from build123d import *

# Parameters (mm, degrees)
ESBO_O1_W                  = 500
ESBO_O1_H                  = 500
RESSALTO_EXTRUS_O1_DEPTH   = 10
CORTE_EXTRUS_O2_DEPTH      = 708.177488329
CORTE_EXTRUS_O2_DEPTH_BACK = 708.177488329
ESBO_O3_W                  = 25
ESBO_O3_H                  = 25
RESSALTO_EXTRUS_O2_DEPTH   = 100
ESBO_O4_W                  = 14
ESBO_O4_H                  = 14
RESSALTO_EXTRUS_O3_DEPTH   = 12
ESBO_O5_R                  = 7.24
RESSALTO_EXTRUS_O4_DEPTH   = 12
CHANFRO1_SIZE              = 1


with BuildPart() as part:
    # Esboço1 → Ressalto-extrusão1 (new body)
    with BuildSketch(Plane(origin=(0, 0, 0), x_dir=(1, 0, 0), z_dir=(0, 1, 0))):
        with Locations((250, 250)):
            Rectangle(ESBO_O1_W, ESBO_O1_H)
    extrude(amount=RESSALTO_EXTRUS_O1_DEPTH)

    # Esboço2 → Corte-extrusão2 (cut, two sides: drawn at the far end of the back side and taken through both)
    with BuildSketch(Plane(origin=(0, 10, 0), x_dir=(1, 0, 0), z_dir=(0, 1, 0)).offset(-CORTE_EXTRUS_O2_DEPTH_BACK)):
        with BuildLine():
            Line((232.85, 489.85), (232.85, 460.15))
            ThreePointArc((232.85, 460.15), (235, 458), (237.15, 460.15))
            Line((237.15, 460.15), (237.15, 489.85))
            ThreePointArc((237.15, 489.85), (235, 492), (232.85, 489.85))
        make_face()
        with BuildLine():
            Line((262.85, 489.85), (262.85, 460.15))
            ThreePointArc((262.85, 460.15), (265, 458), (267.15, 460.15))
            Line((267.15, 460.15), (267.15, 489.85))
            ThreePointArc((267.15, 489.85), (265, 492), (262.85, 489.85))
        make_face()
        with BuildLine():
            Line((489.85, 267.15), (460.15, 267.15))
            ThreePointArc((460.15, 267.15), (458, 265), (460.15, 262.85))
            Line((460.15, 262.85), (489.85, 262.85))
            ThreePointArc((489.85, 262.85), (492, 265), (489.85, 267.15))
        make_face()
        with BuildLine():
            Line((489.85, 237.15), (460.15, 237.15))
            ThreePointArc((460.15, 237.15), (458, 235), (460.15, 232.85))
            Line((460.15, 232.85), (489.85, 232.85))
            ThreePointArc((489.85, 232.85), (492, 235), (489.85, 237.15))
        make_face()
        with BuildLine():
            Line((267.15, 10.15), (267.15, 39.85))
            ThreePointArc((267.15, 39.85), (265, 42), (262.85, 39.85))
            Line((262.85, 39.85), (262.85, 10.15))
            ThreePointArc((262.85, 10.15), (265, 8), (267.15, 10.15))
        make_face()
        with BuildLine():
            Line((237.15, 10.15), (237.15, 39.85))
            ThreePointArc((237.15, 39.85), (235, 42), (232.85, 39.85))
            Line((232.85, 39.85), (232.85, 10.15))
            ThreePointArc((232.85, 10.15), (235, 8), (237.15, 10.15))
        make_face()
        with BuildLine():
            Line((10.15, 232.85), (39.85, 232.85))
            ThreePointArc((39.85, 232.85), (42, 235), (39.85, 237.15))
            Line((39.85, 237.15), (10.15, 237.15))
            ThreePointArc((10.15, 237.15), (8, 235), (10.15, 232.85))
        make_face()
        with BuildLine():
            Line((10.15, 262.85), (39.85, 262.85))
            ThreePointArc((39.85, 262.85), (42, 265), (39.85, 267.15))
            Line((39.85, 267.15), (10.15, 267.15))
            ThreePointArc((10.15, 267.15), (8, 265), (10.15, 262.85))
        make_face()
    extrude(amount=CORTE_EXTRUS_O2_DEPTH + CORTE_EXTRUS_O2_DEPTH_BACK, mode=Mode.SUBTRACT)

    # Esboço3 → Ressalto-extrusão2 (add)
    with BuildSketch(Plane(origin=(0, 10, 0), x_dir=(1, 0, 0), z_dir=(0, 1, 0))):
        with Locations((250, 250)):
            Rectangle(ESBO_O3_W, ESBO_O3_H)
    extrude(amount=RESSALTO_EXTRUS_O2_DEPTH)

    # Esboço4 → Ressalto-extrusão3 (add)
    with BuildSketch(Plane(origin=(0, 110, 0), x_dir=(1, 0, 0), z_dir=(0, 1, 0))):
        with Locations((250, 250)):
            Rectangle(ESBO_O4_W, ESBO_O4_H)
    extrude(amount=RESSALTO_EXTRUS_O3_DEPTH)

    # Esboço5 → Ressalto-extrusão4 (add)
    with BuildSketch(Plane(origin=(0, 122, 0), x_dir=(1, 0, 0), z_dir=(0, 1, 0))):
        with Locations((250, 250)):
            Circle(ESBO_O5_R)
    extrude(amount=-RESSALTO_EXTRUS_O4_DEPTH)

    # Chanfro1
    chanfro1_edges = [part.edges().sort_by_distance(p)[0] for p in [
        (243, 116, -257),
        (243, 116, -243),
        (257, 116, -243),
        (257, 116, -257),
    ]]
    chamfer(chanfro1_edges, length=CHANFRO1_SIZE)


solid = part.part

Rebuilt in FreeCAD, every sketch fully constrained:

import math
import FreeCAD as App
import Part
import Sketcher
Q = App.Units.Quantity


def edges_at(feature, points):
    """Names of the edges that pass closest to the given points."""
    edges = feature.Shape.Edges
    near = lambda p: min(range(len(edges)), key=lambda i: edges[i].distToShape(Part.Vertex(*p))[0])
    return sorted({f"Edge{near(p) + 1}" for p in points})

doc = App.newDocument("Part")
body = doc.addObject("PartDesign::Body", "Body")

# Sketch on XZ plane
sketch1 = body.newObject("Sketcher::SketchObject", "Sketch")
sketch1.AttachmentSupport = (doc.getObject("XZ_Plane"), [""])
sketch1.MapMode = "FlatFace"
sketch1.addGeometry([
    Part.LineSegment(App.Vector(0, -500, 0), App.Vector(0, 0, 0)),
    Part.LineSegment(App.Vector(0, 0, 0), App.Vector(500, 0, 0)),
    Part.LineSegment(App.Vector(500, 0, 0), App.Vector(500, -500, 0)),
    Part.LineSegment(App.Vector(500, -500, 0), App.Vector(0, -500, 0)),
], False)
sketch1.addConstraint([
    Sketcher.Constraint("Coincident", 0, 2, 1, 1),
    Sketcher.Constraint("Coincident", 1, 2, 2, 1),
    Sketcher.Constraint("Coincident", 2, 2, 3, 1),
    Sketcher.Constraint("Coincident", 3, 2, 0, 1),
    Sketcher.Constraint("Vertical", 0),
    Sketcher.Constraint("Horizontal", 1),
    Sketcher.Constraint("Vertical", 2),
    Sketcher.Constraint("Horizontal", 3),
    Sketcher.Constraint("Coincident", 0, 2, -1, 1),
    Sketcher.Constraint("Equal", 3, 0),
    Sketcher.Constraint("DistanceX", 1, 1, 1, 2, Q("500 mm")),
])
pad1 = body.newObject("PartDesign::Pad", "Pad")
pad1.Profile = sketch1
pad1.Length = 10
pad1.Reversed = True

# Sketch on XZ plane
sketch2 = body.newObject("Sketcher::SketchObject", "Sketch001")
sketch2.AttachmentSupport = (doc.getObject("XZ_Plane"), [""])
sketch2.MapMode = "FlatFace"
sketch2.AttachmentOffset = App.Placement(App.Vector(0, 0, -10), App.Rotation())
sketch2.addGeometry([
    Part.LineSegment(App.Vector(232.8, -489.9, 0), App.Vector(232.8, -460.1, 0)),  # 0
    Part.ArcOfCircle(Part.Circle(App.Vector(235, -460.1, 0), App.Vector(0, 0, 1), 2.1), math.radians(0), math.radians(180)),  # 1
    Part.LineSegment(App.Vector(237.2, -460.1, 0), App.Vector(237.2, -489.9, 0)),  # 2
    Part.ArcOfCircle(Part.Circle(App.Vector(235, -489.9, 0), App.Vector(0, 0, 1), 2.1), math.radians(180), math.radians(360)),  # 3
    Part.LineSegment(App.Vector(262.9, -489.9, 0), App.Vector(262.9, -460.1, 0)),  # 4
    Part.ArcOfCircle(Part.Circle(App.Vector(265, -460.1, 0), App.Vector(0, 0, 1), 2.1), math.radians(0), math.radians(180)),  # 5
    Part.LineSegment(App.Vector(267.1, -460.1, 0), App.Vector(267.1, -489.9, 0)),  # 6
    Part.ArcOfCircle(Part.Circle(App.Vector(265, -489.9, 0), App.Vector(0, 0, 1), 2.1), math.radians(180), math.radians(360)),  # 7
    Part.LineSegment(App.Vector(489.9, -267.1, 0), App.Vector(460.1, -267.1, 0)),  # 8
    Part.ArcOfCircle(Part.Circle(App.Vector(460.1, -265, 0), App.Vector(0, 0, 1), 2.1), math.radians(90), math.radians(270)),  # 9
    Part.LineSegment(App.Vector(460.1, -262.9, 0), App.Vector(489.9, -262.9, 0)),  # 10
    Part.ArcOfCircle(Part.Circle(App.Vector(489.9, -265, 0), App.Vector(0, 0, 1), 2.1), math.radians(-90), math.radians(90)),  # 11
    Part.LineSegment(App.Vector(489.9, -237.2, 0), App.Vector(460.1, -237.2, 0)),  # 12
    Part.ArcOfCircle(Part.Circle(App.Vector(460.1, -235, 0), App.Vector(0, 0, 1), 2.1), math.radians(90), math.radians(270)),  # 13
    Part.LineSegment(App.Vector(460.1, -232.8, 0), App.Vector(489.9, -232.8, 0)),  # 14
    Part.ArcOfCircle(Part.Circle(App.Vector(489.9, -235, 0), App.Vector(0, 0, 1), 2.1), math.radians(-90), math.radians(90)),  # 15
    Part.LineSegment(App.Vector(267.1, -10.2, 0), App.Vector(267.1, -39.9, 0)),  # 16
    Part.ArcOfCircle(Part.Circle(App.Vector(265, -39.9, 0), App.Vector(0, 0, 1), 2.1), math.radians(180), math.radians(360)),  # 17
    Part.LineSegment(App.Vector(262.9, -39.9, 0), App.Vector(262.9, -10.2, 0)),  # 18
    Part.ArcOfCircle(Part.Circle(App.Vector(265, -10.2, 0), App.Vector(0, 0, 1), 2.1), math.radians(0), math.radians(180)),  # 19
    Part.LineSegment(App.Vector(237.2, -10.2, 0), App.Vector(237.2, -39.9, 0)),  # 20
    Part.ArcOfCircle(Part.Circle(App.Vector(235, -39.9, 0), App.Vector(0, 0, 1), 2.1), math.radians(180), math.radians(360)),  # 21
    Part.LineSegment(App.Vector(232.8, -39.9, 0), App.Vector(232.8, -10.2, 0)),  # 22
    Part.ArcOfCircle(Part.Circle(App.Vector(235, -10.2, 0), App.Vector(0, 0, 1), 2.1), math.radians(0), math.radians(180)),  # 23
    Part.LineSegment(App.Vector(10.2, -232.8, 0), App.Vector(39.9, -232.8, 0)),  # 24
    Part.ArcOfCircle(Part.Circle(App.Vector(39.9, -235, 0), App.Vector(0, 0, 1), 2.1), math.radians(-90), math.radians(90)),  # 25
    Part.LineSegment(App.Vector(39.9, -237.2, 0), App.Vector(10.2, -237.2, 0)),  # 26
    Part.ArcOfCircle(Part.Circle(App.Vector(10.2, -235, 0), App.Vector(0, 0, 1), 2.1), math.radians(90), math.radians(270)),  # 27
    Part.LineSegment(App.Vector(10.2, -262.9, 0), App.Vector(39.9, -262.9, 0)),  # 28
    Part.ArcOfCircle(Part.Circle(App.Vector(39.9, -265, 0), App.Vector(0, 0, 1), 2.1), math.radians(-90), math.radians(90)),  # 29
    Part.LineSegment(App.Vector(39.9, -267.1, 0), App.Vector(10.2, -267.1, 0)),  # 30
    Part.ArcOfCircle(Part.Circle(App.Vector(10.2, -265, 0), App.Vector(0, 0, 1), 2.1), math.radians(90), math.radians(270)),  # 31
], False)
sketch2.addConstraint([
    Sketcher.Constraint("Tangent", 0, 2, 1, 2),
    Sketcher.Constraint("Tangent", 1, 1, 2, 1),
    Sketcher.Constraint("Tangent", 2, 2, 3, 2),
    Sketcher.Constraint("Tangent", 3, 1, 0, 1),
    Sketcher.Constraint("Tangent", 4, 2, 5, 2),
    Sketcher.Constraint("Tangent", 5, 1, 6, 1),
    Sketcher.Constraint("Tangent", 6, 2, 7, 2),
    Sketcher.Constraint("Tangent", 7, 1, 4, 1),
    Sketcher.Constraint("Tangent", 8, 2, 9, 2),
    Sketcher.Constraint("Tangent", 9, 1, 10, 1),
    Sketcher.Constraint("Tangent", 10, 2, 11, 2),
    Sketcher.Constraint("Tangent", 11, 1, 8, 1),
    Sketcher.Constraint("Tangent", 12, 2, 13, 2),
    Sketcher.Constraint("Tangent", 13, 1, 14, 1),
    Sketcher.Constraint("Tangent", 14, 2, 15, 2),
    Sketcher.Constraint("Tangent", 15, 1, 12, 1),
    Sketcher.Constraint("Tangent", 16, 2, 17, 2),
    Sketcher.Constraint("Tangent", 17, 1, 18, 1),
    Sketcher.Constraint("Tangent", 18, 2, 19, 2),
    Sketcher.Constraint("Tangent", 19, 1, 16, 1),
    Sketcher.Constraint("Tangent", 20, 2, 21, 2),
    Sketcher.Constraint("Tangent", 21, 1, 22, 1),
    Sketcher.Constraint("Tangent", 22, 2, 23, 2),
    Sketcher.Constraint("Tangent", 23, 1, 20, 1),
    Sketcher.Constraint("Tangent", 24, 2, 25, 2),
    Sketcher.Constraint("Tangent", 25, 1, 26, 1),
    Sketcher.Constraint("Tangent", 26, 2, 27, 2),
    Sketcher.Constraint("Tangent", 27, 1, 24, 1),
    Sketcher.Constraint("Tangent", 28, 2, 29, 2),
    Sketcher.Constraint("Tangent", 29, 1, 30, 1),
    Sketcher.Constraint("Tangent", 30, 2, 31, 2),
    Sketcher.Constraint("Tangent", 31, 1, 28, 1),
    Sketcher.Constraint("Vertical", 0),
    Sketcher.Constraint("Vertical", 2),
    Sketcher.Constraint("Vertical", 4),
    Sketcher.Constraint("Vertical", 6),
    Sketcher.Constraint("Horizontal", 8),
    Sketcher.Constraint("Horizontal", 10),
    Sketcher.Constraint("Horizontal", 12),
    Sketcher.Constraint("Horizontal", 14),
    Sketcher.Constraint("Vertical", 16),
    Sketcher.Constraint("Vertical", 18),
    Sketcher.Constraint("Vertical", 20),
    Sketcher.Constraint("Vertical", 22),
    Sketcher.Constraint("Horizontal", 24),
    Sketcher.Constraint("Horizontal", 26),
    Sketcher.Constraint("Horizontal", 28),
    Sketcher.Constraint("Horizontal", 30),
    Sketcher.Constraint("Equal", 3, 5),
    Sketcher.Constraint("Equal", 7, 9),
    Sketcher.Constraint("Equal", 11, 13),
    Sketcher.Constraint("Equal", 15, 17),
    Sketcher.Constraint("Equal", 19, 21),
    Sketcher.Constraint("Equal", 23, 25),
    Sketcher.Constraint("Equal", 27, 29),
    Sketcher.Constraint("Horizontal", 1, 3, 5, 3),
    Sketcher.Constraint("Horizontal", 3, 3, 7, 3),
    Sketcher.Constraint("Horizontal", 17, 3, 21, 3),
    Sketcher.Constraint("Horizontal", 19, 3, 23, 3),
    Sketcher.Constraint("Horizontal", 15, 3, 25, 3),
    Sketcher.Constraint("Horizontal", 11, 3, 29, 3),
    Sketcher.Constraint("Vertical", 9, 3, 13, 3),
    Sketcher.Constraint("Vertical", 11, 3, 15, 3),
    Sketcher.Constraint("Vertical", 7, 3, 17, 3),
    Sketcher.Constraint("Vertical", 3, 3, 21, 3),
    Sketcher.Constraint("Vertical", 25, 3, 29, 3),
    Sketcher.Constraint("Vertical", 27, 3, 31, 3),
    Sketcher.Constraint("Equal", 14, 24),
    Sketcher.Constraint("Equal", 30, 0),
    Sketcher.Constraint("Equal", 6, 16),
    Sketcher.Constraint("Radius", 1, Q("2.15 mm")),
    Sketcher.Constraint("DistanceX", 8, 2, 8, 1, Q("29.7 mm")),
    Sketcher.Constraint("DistanceX", -1, 1, 1, 3, Q("235 mm")),
    Sketcher.Constraint("DistanceX", -1, 1, 5, 3, Q("265 mm")),
    Sketcher.Constraint("DistanceY", 9, 3, -1, 1, Q("265 mm")),
    Sketcher.Constraint("DistanceY", 13, 3, -1, 1, Q("235 mm")),
    Sketcher.Constraint("DistanceX", 29, 3, 0, 2, Q("193 mm")),
    Sketcher.Constraint("DistanceX", 5, 1, 8, 2, Q("193 mm")),
    Sketcher.Constraint("DistanceY", 5, 1, 8, 2, Q("193 mm")),
    Sketcher.Constraint("DistanceY", 13, 1, 16, 2, Q("193 mm")),
])
pocket1 = body.newObject("PartDesign::Pocket", "Pocket")
pocket1.Profile = sketch2
pocket1.Type = "ThroughAll"
pocket1.Midplane = True

# Sketch on XZ plane
sketch3 = body.newObject("Sketcher::SketchObject", "Sketch002")
sketch3.AttachmentSupport = (doc.getObject("XZ_Plane"), [""])
sketch3.MapMode = "FlatFace"
sketch3.AttachmentOffset = App.Placement(App.Vector(0, 0, -10), App.Rotation())
sketch3.addGeometry([
    Part.LineSegment(App.Vector(238, -262, 0), App.Vector(238, -238, 0)),
    Part.LineSegment(App.Vector(238, -238, 0), App.Vector(262, -238, 0)),
    Part.LineSegment(App.Vector(262, -238, 0), App.Vector(262, -262, 0)),
    Part.LineSegment(App.Vector(262, -262, 0), App.Vector(238, -262, 0)),
], False)
sketch3.addConstraint([
    Sketcher.Constraint("Coincident", 0, 2, 1, 1),
    Sketcher.Constraint("Coincident", 1, 2, 2, 1),
    Sketcher.Constraint("Coincident", 2, 2, 3, 1),
    Sketcher.Constraint("Coincident", 3, 2, 0, 1),
    Sketcher.Constraint("Vertical", 0),
    Sketcher.Constraint("Horizontal", 1),
    Sketcher.Constraint("Vertical", 2),
    Sketcher.Constraint("Horizontal", 3),
    Sketcher.Constraint("Equal", 3, 0),
    Sketcher.Constraint("DistanceX", 1, 1, 1, 2, Q("25 mm")),
    Sketcher.Constraint("DistanceX", -1, 1, 0, 2, Q("237.5 mm")),
    Sketcher.Constraint("DistanceY", 0, 2, -1, 1, Q("237.5 mm")),
])
pad2 = body.newObject("PartDesign::Pad", "Pad001")
pad2.Profile = sketch3
pad2.Length = 100
pad2.Reversed = True

# Sketch on XZ plane
sketch4 = body.newObject("Sketcher::SketchObject", "Sketch003")
sketch4.AttachmentSupport = (doc.getObject("XZ_Plane"), [""])
sketch4.MapMode = "FlatFace"
sketch4.AttachmentOffset = App.Placement(App.Vector(0, 0, -110), App.Rotation())
sketch4.addGeometry([
    Part.LineSegment(App.Vector(243, -257, 0), App.Vector(243, -243, 0)),
    Part.LineSegment(App.Vector(243, -243, 0), App.Vector(257, -243, 0)),
    Part.LineSegment(App.Vector(257, -243, 0), App.Vector(257, -257, 0)),
    Part.LineSegment(App.Vector(257, -257, 0), App.Vector(243, -257, 0)),
], False)
sketch4.addConstraint([
    Sketcher.Constraint("Coincident", 0, 2, 1, 1),
    Sketcher.Constraint("Coincident", 1, 2, 2, 1),
    Sketcher.Constraint("Coincident", 2, 2, 3, 1),
    Sketcher.Constraint("Coincident", 3, 2, 0, 1),
    Sketcher.Constraint("Vertical", 0),
    Sketcher.Constraint("Horizontal", 1),
    Sketcher.Constraint("Vertical", 2),
    Sketcher.Constraint("Horizontal", 3),
    Sketcher.Constraint("Equal", 3, 0),
    Sketcher.Constraint("DistanceX", 1, 1, 1, 2, Q("14 mm")),
    Sketcher.Constraint("DistanceX", -1, 1, 0, 2, Q("243 mm")),
    Sketcher.Constraint("DistanceY", 0, 2, -1, 1, Q("243 mm")),
])
pad3 = body.newObject("PartDesign::Pad", "Pad002")
pad3.Profile = sketch4
pad3.Length = 12
pad3.Reversed = True

# Sketch on XZ plane
sketch5 = body.newObject("Sketcher::SketchObject", "Sketch004")
sketch5.AttachmentSupport = (doc.getObject("XZ_Plane"), [""])
sketch5.MapMode = "FlatFace"
sketch5.AttachmentOffset = App.Placement(App.Vector(0, 0, -122), App.Rotation())
sketch5.addGeometry(Part.Circle(App.Vector(250, -250, 0), App.Vector(0, 0, 1), 7), False)
sketch5.addConstraint([
    Sketcher.Constraint("Diameter", 0, Q("14.48 mm")),
    Sketcher.Constraint("DistanceX", -1, 1, 0, 3, Q("250 mm")),
    Sketcher.Constraint("DistanceY", 0, 3, -1, 1, Q("250 mm")),
])
pad4 = body.newObject("PartDesign::Pad", "Pad003")
pad4.Profile = sketch5
pad4.Length = 12
doc.recompute()

chamfer = body.newObject("PartDesign::Chamfer", "Chamfer")
chamfer.Base = (pad4, edges_at(pad4, [
    (243, 116, -257),
    (243, 116, -243),
    (257, 116, -243),
    (257, 116, -257),
]))
chamfer.Size = 1

doc.recompute()
